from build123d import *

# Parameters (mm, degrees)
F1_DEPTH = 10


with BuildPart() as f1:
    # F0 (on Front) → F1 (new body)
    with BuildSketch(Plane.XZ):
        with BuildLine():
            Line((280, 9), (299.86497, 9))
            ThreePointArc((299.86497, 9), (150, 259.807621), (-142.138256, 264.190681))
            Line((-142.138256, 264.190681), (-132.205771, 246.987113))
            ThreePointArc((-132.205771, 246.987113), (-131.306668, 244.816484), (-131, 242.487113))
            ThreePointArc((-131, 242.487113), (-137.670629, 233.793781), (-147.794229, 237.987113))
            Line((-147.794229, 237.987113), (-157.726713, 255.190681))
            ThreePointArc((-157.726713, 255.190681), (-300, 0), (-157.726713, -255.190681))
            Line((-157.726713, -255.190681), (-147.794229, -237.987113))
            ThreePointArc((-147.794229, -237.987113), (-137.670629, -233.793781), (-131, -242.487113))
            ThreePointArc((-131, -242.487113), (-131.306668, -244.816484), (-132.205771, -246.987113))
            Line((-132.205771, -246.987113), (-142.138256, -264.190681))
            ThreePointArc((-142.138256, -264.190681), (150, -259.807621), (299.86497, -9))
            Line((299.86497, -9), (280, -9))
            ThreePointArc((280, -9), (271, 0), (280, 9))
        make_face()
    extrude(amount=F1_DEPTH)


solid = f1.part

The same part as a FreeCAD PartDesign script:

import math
import FreeCAD as App
import Part
import Sketcher

V = App.Vector
Q = App.Units.Quantity

doc = App.newDocument("Part")
body = doc.addObject("PartDesign::Body", "Body")

# Sketch on XZ plane
sketch1 = body.newObject("Sketcher::SketchObject", "Sketch")
sketch1.AttachmentSupport = (doc.getObject("XZ_Plane"), [""])
sketch1.MapMode = "FlatFace"
sketch1.addGeometry([
    Part.LineSegment(V(280, 9, 0), V(299.86497, 9, 0)),  # 0
    Part.ArcOfCircle(Part.Circle(V(0, 0, 0), V(0, 0, 1), 300), math.radians(1.719131), math.radians(118.280869)),  # 1
    Part.LineSegment(V(-142.138256, 264.190681, 0), V(-132.205771, 246.987113, 0)),  # 2
    Part.ArcOfCircle(Part.Circle(V(-140.00002, 242.487108, 0), V(0, 0, 1), 9.00002), math.radians(0.000029), math.radians(29.999962)),  # 3
    Part.ArcOfCircle(Part.Circle(V(-140, 242.487114, 0), V(0, 0, 1), 9), math.radians(-149.999995), math.radians(-0.000005)),  # 4
    Part.LineSegment(V(-147.794229, 237.987113, 0), V(-157.726713, 255.190681, 0)),  # 5
    Part.ArcOfCircle(Part.Circle(V(-0.000001, 0, 0), V(0, 0, 1), 299.999999), math.radians(121.719131), math.radians(238.280869)),  # 6
    Part.LineSegment(V(-157.726713, -255.190681, 0), V(-147.794229, -237.987113, 0)),  # 7
    Part.ArcOfCircle(Part.Circle(V(-140, -242.487114, 0), V(0, 0, 1), 9), math.radians(0.000005), math.radians(149.999995)),  # 8
    Part.ArcOfCircle(Part.Circle(V(-140.00002, -242.487108, 0), V(0, 0, 1), 9.00002), math.radians(-29.999962), math.radians(-0.000029)),  # 9
    Part.LineSegment(V(-132.205771, -246.987113, 0), V(-142.138256, -264.190681, 0)),  # 10
    Part.ArcOfCircle(Part.Circle(V(0, 0, 0), V(0, 0, 1), 300), math.radians(-118.280869), math.radians(-1.719131)),  # 11
    Part.LineSegment(V(299.86497, -9, 0), V(280, -9, 0)),  # 12
    Part.ArcOfCircle(Part.Circle(V(280, 0, 0), V(0, 0, 1), 9), math.radians(90), math.radians(270)),  # 13
], False)
sketch1.addConstraint([
    Sketcher.Constraint("Coincident", 0, 2, 1, 1),
    Sketcher.Constraint("Coincident", 1, 2, 2, 1),
    Sketcher.Constraint("Coincident", 2, 2, 3, 2),
    Sketcher.Constraint("Coincident", 3, 1, 4, 2),
    Sketcher.Constraint("Coincident", 4, 1, 5, 1),
    Sketcher.Constraint("Coincident", 5, 2, 6, 1),
    Sketcher.Constraint("Coincident", 6, 2, 7, 1),
    Sketcher.Constraint("Coincident", 7, 2, 8, 2),
    Sketcher.Constraint("Coincident", 8, 1, 9, 2),
    Sketcher.Constraint("Coincident", 9, 1, 10, 1),
    Sketcher.Constraint("Coincident", 10, 2, 11, 1),
    Sketcher.Constraint("Coincident", 11, 2, 12, 1),
    Sketcher.Constraint("Coincident", 12, 2, 13, 2),
    Sketcher.Constraint("Coincident", 13, 1, 0, 1),
    Sketcher.Constraint("Horizontal", 0),
    Sketcher.Constraint("Horizontal", 12),
    Sketcher.Constraint("Coincident", 1, 3, -1, 1),
    Sketcher.Constraint("Coincident", 6, 3, -1, 1),
    Sketcher.Constraint("Coincident", 11, 3, -1, 1),
    Sketcher.Constraint("PointOnObject", 13, 3, -1),
    Sketcher.Constraint("Radius", 1, Q("300 mm")),
    Sketcher.Constraint("Radius", 4, Q("9 mm")),
    Sketcher.Constraint("Radius", 6, Q("299.999999 mm")),
    Sketcher.Constraint("Radius", 8, Q("9 mm")),
    Sketcher.Constraint("Radius", 11, Q("300 mm")),
    Sketcher.Constraint("Radius", 13, Q("9 mm")),
    Sketcher.Constraint("DistanceX", 4, 3, -1, 1, Q("140 mm")),
    Sketcher.Constraint("DistanceX", 8, 3, -1, 1, Q("140 mm")),
    Sketcher.Constraint("DistanceX", -1, 1, 13, 3, Q("280 mm")),
    Sketcher.Constraint("DistanceX", -1, 1, 12, 2, Q("280 mm")),
    Sketcher.Constraint("DistanceX", -1, 1, 13, 1, Q("280 mm")),
    Sketcher.Constraint("DistanceY", 4, 1, 2, 2, Q("9 mm")),
    Sketcher.Constraint("DistanceY", 5, 2, 1, 2, Q("9 mm")),
    Sketcher.Constraint("DistanceY", 9, 1, 7, 2, Q("9 mm")),
    Sketcher.Constraint("DistanceY", 10, 2, 6, 2, Q("9 mm")),
    Sketcher.Constraint("DistanceY", 4, 3, 2, 2, Q("4.499999 mm")),
    Sketcher.Constraint("DistanceY", 3, 1, 2, 2, Q("4.5 mm")),
    Sketcher.Constraint("DistanceY", 8, 3, 7, 2, Q("4.500001 mm")),
    Sketcher.Constraint("DistanceY", 8, 1, 7, 2, Q("4.5 mm")),
    Sketcher.Constraint("Radius", 3, Q("9.00002 mm")),
    Sketcher.Constraint("Radius", 9, Q("9.00002 mm")),
    Sketcher.Constraint("Distance", 2, Q("19.864969 mm")),
    Sketcher.Constraint("Distance", 5, Q("19.864969 mm")),
    Sketcher.Constraint("Distance", 7, Q("19.864969 mm")),
    Sketcher.Constraint("Distance", 10, Q("19.864969 mm")),
    Sketcher.Constraint("DistanceY", -1, 1, 3, 3, Q("242.487108 mm")),
    Sketcher.Constraint("DistanceY", 9, 3, -1, 1, Q("242.487108 mm")),
])
pad1 = body.newObject("PartDesign::Pad", "Pad")
pad1.Profile = sketch1
pad1.Length = 10

doc.recompute()
